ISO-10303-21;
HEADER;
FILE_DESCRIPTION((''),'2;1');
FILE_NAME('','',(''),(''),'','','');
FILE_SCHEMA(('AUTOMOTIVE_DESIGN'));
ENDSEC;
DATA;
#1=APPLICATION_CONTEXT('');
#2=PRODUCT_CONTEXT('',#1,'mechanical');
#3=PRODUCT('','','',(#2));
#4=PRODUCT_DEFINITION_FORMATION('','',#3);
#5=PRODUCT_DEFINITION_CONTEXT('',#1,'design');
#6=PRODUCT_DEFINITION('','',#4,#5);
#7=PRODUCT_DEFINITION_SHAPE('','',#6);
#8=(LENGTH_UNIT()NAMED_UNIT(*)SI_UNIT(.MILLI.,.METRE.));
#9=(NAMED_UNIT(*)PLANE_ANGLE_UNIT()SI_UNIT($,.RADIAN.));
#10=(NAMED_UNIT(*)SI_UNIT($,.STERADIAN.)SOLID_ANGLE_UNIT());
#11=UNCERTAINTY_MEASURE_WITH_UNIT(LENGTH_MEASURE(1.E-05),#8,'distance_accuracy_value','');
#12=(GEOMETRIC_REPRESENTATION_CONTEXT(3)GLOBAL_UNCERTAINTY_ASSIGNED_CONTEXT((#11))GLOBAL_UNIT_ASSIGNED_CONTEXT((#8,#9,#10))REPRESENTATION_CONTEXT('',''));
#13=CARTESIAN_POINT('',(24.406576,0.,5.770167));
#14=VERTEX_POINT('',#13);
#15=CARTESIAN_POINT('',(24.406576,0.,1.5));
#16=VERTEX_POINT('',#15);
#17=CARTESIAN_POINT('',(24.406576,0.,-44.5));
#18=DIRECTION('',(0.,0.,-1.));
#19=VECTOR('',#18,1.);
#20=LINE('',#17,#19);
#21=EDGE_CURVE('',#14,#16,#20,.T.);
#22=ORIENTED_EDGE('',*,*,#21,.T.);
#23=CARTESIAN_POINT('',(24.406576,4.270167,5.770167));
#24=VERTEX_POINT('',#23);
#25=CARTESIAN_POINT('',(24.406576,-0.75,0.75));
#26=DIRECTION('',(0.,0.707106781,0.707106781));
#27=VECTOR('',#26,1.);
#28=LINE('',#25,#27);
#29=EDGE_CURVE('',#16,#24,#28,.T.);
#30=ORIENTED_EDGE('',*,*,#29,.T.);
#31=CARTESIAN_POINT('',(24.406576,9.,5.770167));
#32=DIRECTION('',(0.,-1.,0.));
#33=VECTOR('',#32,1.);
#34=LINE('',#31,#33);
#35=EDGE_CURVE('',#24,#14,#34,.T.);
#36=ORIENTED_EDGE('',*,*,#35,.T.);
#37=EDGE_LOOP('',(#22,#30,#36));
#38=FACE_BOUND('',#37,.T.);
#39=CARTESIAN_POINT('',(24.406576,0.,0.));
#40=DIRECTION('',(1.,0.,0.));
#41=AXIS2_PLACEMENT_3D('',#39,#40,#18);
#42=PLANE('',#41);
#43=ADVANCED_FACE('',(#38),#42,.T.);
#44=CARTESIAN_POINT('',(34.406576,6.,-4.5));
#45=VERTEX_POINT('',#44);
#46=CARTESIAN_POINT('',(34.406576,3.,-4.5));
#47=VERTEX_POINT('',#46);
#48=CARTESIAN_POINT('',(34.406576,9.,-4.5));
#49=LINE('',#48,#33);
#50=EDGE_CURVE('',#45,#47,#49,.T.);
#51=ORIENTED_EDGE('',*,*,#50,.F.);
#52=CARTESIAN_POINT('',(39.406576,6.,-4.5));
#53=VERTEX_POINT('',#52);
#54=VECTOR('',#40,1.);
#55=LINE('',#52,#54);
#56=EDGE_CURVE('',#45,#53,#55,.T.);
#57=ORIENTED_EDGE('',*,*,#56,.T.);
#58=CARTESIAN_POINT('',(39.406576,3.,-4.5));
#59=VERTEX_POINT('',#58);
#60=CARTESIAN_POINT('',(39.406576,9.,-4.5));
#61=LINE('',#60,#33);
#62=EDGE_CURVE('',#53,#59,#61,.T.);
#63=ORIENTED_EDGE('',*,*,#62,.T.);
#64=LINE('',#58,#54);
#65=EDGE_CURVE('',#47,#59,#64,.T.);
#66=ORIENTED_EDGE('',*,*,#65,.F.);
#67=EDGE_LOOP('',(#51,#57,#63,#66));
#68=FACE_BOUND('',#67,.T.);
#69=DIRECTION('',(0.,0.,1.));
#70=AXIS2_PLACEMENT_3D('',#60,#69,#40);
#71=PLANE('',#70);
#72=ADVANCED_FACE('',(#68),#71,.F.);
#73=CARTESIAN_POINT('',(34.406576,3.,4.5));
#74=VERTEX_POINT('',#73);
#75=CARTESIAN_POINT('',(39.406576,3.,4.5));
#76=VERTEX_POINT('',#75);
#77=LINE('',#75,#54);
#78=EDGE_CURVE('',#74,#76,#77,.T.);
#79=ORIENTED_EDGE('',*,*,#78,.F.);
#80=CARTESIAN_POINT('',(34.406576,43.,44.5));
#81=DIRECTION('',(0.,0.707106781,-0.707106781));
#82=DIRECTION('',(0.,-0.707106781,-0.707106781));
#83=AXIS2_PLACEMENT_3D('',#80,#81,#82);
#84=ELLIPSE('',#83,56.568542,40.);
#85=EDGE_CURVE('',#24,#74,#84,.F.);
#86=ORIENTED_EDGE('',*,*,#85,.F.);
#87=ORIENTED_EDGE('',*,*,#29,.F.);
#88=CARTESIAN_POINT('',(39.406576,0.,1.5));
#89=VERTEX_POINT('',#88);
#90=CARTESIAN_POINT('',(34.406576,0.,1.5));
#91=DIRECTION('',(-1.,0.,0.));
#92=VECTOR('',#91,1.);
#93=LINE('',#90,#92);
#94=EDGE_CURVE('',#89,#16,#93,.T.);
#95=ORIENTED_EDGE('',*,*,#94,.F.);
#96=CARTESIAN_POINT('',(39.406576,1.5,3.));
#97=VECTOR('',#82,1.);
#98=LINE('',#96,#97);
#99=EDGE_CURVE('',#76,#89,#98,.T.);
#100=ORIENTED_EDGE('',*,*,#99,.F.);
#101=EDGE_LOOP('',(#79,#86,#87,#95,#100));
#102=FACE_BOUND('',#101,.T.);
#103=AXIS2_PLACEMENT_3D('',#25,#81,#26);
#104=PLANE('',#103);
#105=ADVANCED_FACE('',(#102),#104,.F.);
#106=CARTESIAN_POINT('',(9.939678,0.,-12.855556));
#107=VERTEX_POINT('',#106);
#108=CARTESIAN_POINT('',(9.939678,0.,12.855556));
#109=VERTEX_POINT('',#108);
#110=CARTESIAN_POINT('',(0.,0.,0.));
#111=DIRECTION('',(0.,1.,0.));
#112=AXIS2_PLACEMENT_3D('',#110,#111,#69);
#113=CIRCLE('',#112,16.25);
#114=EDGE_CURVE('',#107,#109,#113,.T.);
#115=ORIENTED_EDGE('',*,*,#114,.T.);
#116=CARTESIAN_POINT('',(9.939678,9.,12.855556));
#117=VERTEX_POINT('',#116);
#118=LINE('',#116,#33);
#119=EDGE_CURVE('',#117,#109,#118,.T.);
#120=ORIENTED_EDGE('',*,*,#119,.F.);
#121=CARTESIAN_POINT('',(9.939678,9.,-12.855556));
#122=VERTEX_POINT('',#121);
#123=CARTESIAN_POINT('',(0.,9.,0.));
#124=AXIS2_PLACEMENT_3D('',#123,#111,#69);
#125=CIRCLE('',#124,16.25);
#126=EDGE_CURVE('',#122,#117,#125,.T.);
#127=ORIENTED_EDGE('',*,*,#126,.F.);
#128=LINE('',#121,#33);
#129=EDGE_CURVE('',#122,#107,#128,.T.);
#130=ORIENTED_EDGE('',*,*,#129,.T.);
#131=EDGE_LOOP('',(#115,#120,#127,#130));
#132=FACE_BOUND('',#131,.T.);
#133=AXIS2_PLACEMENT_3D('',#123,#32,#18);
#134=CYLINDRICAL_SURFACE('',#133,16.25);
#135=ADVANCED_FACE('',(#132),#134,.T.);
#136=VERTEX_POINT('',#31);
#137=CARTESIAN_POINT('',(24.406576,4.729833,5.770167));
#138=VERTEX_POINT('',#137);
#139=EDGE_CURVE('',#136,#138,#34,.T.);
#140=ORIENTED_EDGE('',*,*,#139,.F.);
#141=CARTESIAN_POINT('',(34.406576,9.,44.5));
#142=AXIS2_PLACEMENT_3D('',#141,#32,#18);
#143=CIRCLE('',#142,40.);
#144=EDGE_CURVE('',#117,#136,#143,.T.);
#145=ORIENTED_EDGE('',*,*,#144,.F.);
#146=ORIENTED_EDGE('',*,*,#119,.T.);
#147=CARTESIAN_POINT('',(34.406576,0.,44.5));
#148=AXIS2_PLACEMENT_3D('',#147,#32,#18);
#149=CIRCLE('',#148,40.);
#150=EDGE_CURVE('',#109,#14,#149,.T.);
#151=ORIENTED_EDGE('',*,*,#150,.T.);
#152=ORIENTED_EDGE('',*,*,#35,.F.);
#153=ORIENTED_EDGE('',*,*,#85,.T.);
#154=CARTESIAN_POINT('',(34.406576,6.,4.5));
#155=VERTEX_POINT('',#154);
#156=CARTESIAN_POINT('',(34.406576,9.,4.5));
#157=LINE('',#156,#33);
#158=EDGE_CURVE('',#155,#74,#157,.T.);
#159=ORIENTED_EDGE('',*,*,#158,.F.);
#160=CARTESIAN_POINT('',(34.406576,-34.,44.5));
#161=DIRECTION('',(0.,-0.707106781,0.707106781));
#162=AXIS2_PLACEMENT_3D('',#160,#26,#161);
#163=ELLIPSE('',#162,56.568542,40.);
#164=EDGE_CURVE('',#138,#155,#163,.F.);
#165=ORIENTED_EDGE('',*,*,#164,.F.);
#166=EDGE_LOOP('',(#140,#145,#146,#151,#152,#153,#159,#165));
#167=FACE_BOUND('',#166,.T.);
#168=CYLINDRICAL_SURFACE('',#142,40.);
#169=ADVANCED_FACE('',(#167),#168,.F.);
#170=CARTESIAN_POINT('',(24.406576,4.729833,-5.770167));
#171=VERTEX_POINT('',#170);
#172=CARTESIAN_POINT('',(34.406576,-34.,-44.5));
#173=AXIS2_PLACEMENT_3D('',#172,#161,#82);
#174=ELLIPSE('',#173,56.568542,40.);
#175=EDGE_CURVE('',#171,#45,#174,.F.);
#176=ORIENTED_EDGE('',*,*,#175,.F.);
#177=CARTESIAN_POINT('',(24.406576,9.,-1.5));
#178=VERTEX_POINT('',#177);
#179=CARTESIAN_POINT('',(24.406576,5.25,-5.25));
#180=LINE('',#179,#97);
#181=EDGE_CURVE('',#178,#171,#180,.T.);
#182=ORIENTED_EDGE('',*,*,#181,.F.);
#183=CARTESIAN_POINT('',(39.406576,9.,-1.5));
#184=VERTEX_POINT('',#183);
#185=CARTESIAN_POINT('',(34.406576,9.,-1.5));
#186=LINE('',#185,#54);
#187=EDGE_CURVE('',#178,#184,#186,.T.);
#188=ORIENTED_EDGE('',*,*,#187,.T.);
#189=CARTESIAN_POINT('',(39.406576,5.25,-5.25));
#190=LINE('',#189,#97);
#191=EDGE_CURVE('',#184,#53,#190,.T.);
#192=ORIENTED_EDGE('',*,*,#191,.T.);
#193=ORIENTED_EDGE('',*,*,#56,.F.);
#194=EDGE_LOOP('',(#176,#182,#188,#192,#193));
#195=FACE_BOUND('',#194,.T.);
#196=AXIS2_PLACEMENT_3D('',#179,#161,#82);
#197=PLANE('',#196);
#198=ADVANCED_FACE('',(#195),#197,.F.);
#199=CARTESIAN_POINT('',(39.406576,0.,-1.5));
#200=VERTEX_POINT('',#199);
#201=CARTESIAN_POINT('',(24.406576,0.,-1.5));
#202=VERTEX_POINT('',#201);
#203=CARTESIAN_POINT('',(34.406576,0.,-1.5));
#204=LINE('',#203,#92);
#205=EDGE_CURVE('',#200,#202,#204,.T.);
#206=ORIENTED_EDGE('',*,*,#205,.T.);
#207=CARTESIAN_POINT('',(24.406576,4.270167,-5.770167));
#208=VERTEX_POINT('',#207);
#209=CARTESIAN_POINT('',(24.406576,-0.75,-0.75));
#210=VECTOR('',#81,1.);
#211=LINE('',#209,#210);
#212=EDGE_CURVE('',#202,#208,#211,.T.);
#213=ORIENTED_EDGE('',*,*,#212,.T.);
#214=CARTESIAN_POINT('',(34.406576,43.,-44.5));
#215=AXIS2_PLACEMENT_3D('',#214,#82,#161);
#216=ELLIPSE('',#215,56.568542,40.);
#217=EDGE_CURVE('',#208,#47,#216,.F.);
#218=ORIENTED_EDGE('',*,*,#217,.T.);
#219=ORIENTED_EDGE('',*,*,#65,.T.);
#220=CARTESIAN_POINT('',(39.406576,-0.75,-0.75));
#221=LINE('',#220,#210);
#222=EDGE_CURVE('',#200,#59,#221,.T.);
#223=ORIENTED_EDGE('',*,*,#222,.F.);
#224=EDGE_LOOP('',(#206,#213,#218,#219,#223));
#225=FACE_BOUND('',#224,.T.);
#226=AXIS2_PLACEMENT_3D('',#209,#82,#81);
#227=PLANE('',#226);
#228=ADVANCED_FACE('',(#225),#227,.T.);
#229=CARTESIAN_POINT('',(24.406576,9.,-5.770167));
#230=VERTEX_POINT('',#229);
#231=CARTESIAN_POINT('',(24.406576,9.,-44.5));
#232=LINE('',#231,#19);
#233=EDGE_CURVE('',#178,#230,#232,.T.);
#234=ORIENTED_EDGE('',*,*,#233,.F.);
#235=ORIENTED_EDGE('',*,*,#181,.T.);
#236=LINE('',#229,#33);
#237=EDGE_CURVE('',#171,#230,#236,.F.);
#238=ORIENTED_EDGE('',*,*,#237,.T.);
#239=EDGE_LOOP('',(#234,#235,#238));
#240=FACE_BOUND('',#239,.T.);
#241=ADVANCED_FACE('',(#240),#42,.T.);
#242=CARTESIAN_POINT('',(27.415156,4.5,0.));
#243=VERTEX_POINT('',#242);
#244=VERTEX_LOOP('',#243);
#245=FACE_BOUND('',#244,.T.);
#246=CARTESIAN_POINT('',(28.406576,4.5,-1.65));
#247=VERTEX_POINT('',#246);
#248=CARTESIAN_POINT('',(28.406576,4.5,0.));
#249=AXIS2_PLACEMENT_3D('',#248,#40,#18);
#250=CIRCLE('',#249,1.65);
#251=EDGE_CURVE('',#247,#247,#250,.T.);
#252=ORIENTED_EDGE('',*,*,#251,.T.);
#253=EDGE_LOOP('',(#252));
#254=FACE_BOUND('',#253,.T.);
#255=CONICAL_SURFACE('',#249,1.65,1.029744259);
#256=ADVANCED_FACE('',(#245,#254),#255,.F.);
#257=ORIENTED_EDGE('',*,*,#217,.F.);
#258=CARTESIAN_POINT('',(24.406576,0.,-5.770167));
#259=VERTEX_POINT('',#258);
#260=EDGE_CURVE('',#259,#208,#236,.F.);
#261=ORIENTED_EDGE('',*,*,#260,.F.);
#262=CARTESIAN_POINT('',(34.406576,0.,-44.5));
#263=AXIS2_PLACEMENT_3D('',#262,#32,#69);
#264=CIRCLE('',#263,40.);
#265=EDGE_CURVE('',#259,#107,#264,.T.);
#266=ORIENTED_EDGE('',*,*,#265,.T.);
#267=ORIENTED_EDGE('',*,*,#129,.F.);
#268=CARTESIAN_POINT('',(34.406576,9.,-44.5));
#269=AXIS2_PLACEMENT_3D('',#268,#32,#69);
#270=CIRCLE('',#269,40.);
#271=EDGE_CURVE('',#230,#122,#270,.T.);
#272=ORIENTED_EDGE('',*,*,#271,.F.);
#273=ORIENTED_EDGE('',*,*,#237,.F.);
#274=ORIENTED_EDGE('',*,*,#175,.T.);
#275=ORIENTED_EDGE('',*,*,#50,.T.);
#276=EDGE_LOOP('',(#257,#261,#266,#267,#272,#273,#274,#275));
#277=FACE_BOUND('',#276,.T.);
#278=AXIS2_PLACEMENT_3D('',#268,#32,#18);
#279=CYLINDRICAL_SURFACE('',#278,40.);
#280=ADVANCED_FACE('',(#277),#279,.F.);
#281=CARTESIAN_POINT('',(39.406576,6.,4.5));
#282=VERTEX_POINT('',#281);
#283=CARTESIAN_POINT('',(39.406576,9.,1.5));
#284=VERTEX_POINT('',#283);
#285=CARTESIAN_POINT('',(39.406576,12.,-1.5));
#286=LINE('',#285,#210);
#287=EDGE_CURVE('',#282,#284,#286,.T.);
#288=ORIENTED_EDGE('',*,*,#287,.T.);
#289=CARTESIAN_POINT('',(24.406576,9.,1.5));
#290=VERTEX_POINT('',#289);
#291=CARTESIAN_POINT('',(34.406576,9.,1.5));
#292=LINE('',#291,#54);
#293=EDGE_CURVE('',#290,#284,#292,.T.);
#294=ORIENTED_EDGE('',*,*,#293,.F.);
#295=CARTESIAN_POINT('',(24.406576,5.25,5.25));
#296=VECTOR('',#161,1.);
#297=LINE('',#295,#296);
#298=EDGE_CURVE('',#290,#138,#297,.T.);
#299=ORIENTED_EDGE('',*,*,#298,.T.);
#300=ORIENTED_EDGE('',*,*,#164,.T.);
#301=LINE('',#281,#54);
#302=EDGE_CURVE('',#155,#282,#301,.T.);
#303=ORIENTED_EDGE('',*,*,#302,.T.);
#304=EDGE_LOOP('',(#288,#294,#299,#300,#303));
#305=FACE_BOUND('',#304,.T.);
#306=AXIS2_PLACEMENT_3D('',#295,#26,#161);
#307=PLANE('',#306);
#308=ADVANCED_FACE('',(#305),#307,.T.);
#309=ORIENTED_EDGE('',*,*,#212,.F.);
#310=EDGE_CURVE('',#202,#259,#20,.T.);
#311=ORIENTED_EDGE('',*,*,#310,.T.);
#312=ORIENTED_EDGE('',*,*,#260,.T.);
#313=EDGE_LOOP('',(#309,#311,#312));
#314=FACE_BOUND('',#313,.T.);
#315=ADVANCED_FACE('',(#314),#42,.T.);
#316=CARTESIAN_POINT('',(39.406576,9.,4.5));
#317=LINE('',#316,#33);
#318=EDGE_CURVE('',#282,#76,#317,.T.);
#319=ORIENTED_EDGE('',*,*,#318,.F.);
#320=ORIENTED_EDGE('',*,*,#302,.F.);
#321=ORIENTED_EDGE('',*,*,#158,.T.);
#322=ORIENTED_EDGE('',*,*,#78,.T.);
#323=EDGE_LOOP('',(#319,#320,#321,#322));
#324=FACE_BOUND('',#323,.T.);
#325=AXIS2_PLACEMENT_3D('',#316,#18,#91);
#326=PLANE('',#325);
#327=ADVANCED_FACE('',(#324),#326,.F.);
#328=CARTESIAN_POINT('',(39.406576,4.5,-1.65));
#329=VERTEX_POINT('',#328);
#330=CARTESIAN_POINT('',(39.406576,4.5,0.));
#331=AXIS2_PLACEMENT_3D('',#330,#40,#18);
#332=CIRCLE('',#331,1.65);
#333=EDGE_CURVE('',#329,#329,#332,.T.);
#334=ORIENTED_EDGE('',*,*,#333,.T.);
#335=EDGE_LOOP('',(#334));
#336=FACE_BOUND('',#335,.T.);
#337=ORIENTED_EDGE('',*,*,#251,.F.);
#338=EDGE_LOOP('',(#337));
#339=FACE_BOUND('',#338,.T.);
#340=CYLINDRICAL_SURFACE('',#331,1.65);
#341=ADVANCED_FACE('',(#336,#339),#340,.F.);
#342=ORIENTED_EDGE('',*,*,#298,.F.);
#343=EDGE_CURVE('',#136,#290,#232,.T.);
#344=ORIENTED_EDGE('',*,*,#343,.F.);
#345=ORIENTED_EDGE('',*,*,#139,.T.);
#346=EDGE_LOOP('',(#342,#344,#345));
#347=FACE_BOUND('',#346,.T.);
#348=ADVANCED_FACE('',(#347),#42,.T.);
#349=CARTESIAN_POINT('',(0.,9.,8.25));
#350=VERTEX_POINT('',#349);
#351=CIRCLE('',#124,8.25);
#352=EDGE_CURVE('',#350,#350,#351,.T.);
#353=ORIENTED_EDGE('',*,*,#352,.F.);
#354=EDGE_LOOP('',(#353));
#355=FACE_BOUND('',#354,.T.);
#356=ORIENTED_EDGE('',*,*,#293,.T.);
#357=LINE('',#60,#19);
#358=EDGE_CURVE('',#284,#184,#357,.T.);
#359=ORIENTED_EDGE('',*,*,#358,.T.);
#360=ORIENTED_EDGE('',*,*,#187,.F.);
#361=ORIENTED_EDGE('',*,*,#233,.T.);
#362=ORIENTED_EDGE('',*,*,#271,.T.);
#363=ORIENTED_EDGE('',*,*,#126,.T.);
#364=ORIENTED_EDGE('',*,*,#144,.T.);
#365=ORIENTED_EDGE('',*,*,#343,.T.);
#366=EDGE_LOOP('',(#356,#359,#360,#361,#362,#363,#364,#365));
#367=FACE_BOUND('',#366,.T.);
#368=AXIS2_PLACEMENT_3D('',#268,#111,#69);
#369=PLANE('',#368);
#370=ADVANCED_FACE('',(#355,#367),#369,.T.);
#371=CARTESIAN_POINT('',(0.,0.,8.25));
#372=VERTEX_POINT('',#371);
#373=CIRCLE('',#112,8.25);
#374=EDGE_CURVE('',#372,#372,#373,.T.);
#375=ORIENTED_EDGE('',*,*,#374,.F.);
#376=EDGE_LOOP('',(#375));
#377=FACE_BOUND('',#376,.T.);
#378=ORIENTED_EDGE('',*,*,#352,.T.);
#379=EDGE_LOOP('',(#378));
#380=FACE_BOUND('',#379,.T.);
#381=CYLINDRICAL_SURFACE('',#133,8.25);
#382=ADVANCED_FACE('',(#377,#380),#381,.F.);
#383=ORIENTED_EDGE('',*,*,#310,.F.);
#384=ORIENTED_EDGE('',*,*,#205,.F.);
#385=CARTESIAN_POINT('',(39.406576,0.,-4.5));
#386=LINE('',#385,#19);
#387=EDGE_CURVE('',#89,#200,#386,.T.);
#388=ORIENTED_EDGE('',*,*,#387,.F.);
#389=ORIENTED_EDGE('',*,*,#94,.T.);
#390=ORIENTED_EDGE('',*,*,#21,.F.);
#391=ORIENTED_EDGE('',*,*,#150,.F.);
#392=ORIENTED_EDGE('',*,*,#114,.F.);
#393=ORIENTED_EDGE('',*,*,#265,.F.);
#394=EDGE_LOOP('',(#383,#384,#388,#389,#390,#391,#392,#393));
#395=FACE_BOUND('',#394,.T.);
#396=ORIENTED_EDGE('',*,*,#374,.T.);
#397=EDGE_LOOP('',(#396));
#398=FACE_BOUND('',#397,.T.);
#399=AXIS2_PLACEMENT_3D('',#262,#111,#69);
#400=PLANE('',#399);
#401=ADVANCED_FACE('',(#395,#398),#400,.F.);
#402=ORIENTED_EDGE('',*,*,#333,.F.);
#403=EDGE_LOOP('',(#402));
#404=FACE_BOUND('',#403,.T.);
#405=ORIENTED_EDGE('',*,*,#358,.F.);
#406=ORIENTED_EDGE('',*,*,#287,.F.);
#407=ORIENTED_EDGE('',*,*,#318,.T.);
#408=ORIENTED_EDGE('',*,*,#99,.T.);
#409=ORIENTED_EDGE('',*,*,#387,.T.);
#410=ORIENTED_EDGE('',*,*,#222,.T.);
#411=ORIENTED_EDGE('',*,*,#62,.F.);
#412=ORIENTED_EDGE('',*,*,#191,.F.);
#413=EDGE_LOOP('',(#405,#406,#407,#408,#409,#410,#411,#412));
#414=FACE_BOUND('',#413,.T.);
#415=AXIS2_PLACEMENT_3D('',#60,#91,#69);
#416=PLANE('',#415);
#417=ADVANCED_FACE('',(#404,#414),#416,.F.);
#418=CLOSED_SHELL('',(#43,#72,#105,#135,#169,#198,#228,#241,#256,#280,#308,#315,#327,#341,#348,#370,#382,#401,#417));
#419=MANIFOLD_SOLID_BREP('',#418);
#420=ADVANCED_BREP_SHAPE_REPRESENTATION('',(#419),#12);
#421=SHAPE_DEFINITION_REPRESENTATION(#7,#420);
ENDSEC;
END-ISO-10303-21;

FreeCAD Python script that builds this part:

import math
import FreeCAD as App
import Part
import Sketcher

doc = App.newDocument("Part")
body = doc.addObject("PartDesign::Body", "Body")

# Sketch on XZ plane
sketch1 = doc.addObject("Sketcher::SketchObject", "Sketch")
body.addObject(sketch1)
sketch1.AttachmentSupport = (doc.XZ_Plane, [""])
sketch1.MapMode = "FlatFace"
sketch1.addGeometry(Part.LineSegment(App.Vector(39, 4, 0), App.Vector(39, -4, 0)), False)
sketch1.addGeometry(Part.LineSegment(App.Vector(39, -4, 0), App.Vector(34, -4, 0)), False)
sketch1.addGeometry(Part.ArcOfCircle(Part.Circle(App.Vector(34, -45, 0), App.Vector(0, 0, 1), 40), math.radians(90), math.radians(128)), False)
sketch1.addGeometry(Part.ArcOfCircle(Part.Circle(App.Vector(0, 0, 0), App.Vector(0, 0, 1), 16), math.radians(52), math.radians(308)), False)
sketch1.addGeometry(Part.ArcOfCircle(Part.Circle(App.Vector(34, 45, 0), App.Vector(0, 0, 1), 40), math.radians(-128), math.radians(-90)), False)
sketch1.addGeometry(Part.LineSegment(App.Vector(34, 4, 0), App.Vector(39, 4, 0)), False)
sketch1.addGeometry(Part.Circle(App.Vector(0, 0, 0), App.Vector(0, 0, 1), 8), False)
sketch1.addConstraint(Sketcher.Constraint("Coincident", 0, 2, 1, 1))
sketch1.addConstraint(Sketcher.Constraint("Tangent", 1, 2, 2, 1))
sketch1.addConstraint(Sketcher.Constraint("Tangent", 2, 2, 3, 2))
sketch1.addConstraint(Sketcher.Constraint("Tangent", 3, 1, 4, 1))
sketch1.addConstraint(Sketcher.Constraint("Tangent", 4, 2, 5, 1))
sketch1.addConstraint(Sketcher.Constraint("Coincident", 5, 2, 0, 1))
sketch1.addConstraint(Sketcher.Constraint("Vertical", 0))
sketch1.addConstraint(Sketcher.Constraint("Horizontal", 1))
sketch1.addConstraint(Sketcher.Constraint("Horizontal", 5))
sketch1.addConstraint(Sketcher.Constraint("Coincident", 3, 3, -1, 1))
sketch1.addConstraint(Sketcher.Constraint("Coincident", 6, 3, -1, 1))
sketch1.addConstraint(Sketcher.Constraint("Equal", 2, 4))
sketch1.addConstraint(Sketcher.Constraint("Vertical", 2, 3, 4, 3))
sketch1.addConstraint(Sketcher.Constraint("Radius", 2, 40.0))
sketch1.addConstraint(Sketcher.Constraint("Diameter", 6, 16.5))
sketch1.addConstraint(Sketcher.Constraint("DistanceX", 1, 2, 1, 1, 5.0))
sketch1.addConstraint(Sketcher.Constraint("DistanceY", 0, 2, 0, 1, 9.0))
sketch1.addConstraint(Sketcher.Constraint("Radius", 3, 16.25))
pad1 = doc.addObject("PartDesign::Pad", "Pad")
body.addObject(pad1)
pad1.Profile = sketch1
pad1.Length = 9
pad1.Reversed = True

# Sketch on YZ plane
sketch2 = doc.addObject("Sketcher::SketchObject", "Sketch001")
body.addObject(sketch2)
sketch2.AttachmentSupport = (doc.YZ_Plane, [""])
sketch2.MapMode = "FlatFace"
sketch2.AttachmentOffset = App.Placement(App.Vector(0, 0, 39.406576), App.Rotation())
sketch2.addGeometry(Part.Circle(App.Vector(4.5, 0, 0), App.Vector(0, 0, 1), 1.6), False)
sketch2.addConstraint(Sketcher.Constraint("PointOnObject", 0, 3, -1))
sketch2.addConstraint(Sketcher.Constraint("Diameter", 0, 3.3))
sketch2.addConstraint(Sketcher.Constraint("DistanceX", -1, 1, 0, 3, 4.5))
doc.recompute()
hole = doc.addObject("PartDesign::Hole", "Hole")
body.addObject(hole)
hole.Profile = sketch2
hole.ThreadType = "None"
hole.Diameter = 3.3
hole.DepthType = "Dimension"
hole.Depth = 11
hole.DrillPoint = "Angled"
hole.DrillPointAngle = 118

# Sketch on YZ plane
sketch3 = doc.addObject("Sketcher::SketchObject", "Sketch002")
body.addObject(sketch3)
sketch3.AttachmentSupport = (doc.YZ_Plane, [""])
sketch3.MapMode = "FlatFace"
sketch3.AttachmentOffset = App.Placement(App.Vector(0, 0, 39.406576), App.Rotation())
sketch3.addGeometry(Part.LineSegment(App.Vector(10, 0, 0), App.Vector(10, 6, 0)), False)
sketch3.addGeometry(Part.LineSegment(App.Vector(10, 6, 0), App.Vector(4, 6, 0)), False)
sketch3.addGeometry(Part.LineSegment(App.Vector(4, 6, 0), App.Vector(10, 0, 0)), False)
sketch3.addGeometry(Part.LineSegment(App.Vector(10, -6, 0), App.Vector(10, 0, 0)), False)
sketch3.addGeometry(Part.LineSegment(App.Vector(10, 0, 0), App.Vector(4, -6, 0)), False)
sketch3.addGeometry(Part.LineSegment(App.Vector(4, -6, 0), App.Vector(10, -6, 0)), False)
sketch3.addGeometry(Part.LineSegment(App.Vector(-2, 0, 0), App.Vector(-2, -6, 0)), False)
sketch3.addGeometry(Part.LineSegment(App.Vector(-2, -6, 0), App.Vector(4, -6, 0)), False)
sketch3.addGeometry(Part.LineSegment(App.Vector(4, -6, 0), App.Vector(-2, 0, 0)), False)
sketch3.addGeometry(Part.LineSegment(App.Vector(4, 6, 0), App.Vector(-2, 6, 0)), False)
sketch3.addGeometry(Part.LineSegment(App.Vector(-2, 6, 0), App.Vector(-2, 0, 0)), False)
sketch3.addGeometry(Part.LineSegment(App.Vector(-2, 0, 0), App.Vector(4, 6, 0)), False)
sketch3.addConstraint(Sketcher.Constraint("Coincident", 0, 2, 1, 1))
sketch3.addConstraint(Sketcher.Constraint("Coincident", 1, 2, 2, 1))
sketch3.addConstraint(Sketcher.Constraint("Coincident", 2, 2, 0, 1))
sketch3.addConstraint(Sketcher.Constraint("Coincident", 3, 2, 4, 1))
sketch3.addConstraint(Sketcher.Constraint("Coincident", 4, 2, 5, 1))
sketch3.addConstraint(Sketcher.Constraint("Coincident", 5, 2, 3, 1))
sketch3.addConstraint(Sketcher.Constraint("Coincident", 6, 2, 7, 1))
sketch3.addConstraint(Sketcher.Constraint("Coincident", 7, 2, 8, 1))
sketch3.addConstraint(Sketcher.Constraint("Coincident", 8, 2, 6, 1))
sketch3.addConstraint(Sketcher.Constraint("Coincident", 9, 2, 10, 1))
sketch3.addConstraint(Sketcher.Constraint("Coincident", 10, 2, 11, 1))
sketch3.addConstraint(Sketcher.Constraint("Coincident", 11, 2, 9, 1))
sketch3.addConstraint(Sketcher.Constraint("Vertical", 0))
sketch3.addConstraint(Sketcher.Constraint("Horizontal", 1))
sketch3.addConstraint(Sketcher.Constraint("Vertical", 3))
sketch3.addConstraint(Sketcher.Constraint("Horizontal", 5))
sketch3.addConstraint(Sketcher.Constraint("Vertical", 6))
sketch3.addConstraint(Sketcher.Constraint("Horizontal", 7))
sketch3.addConstraint(Sketcher.Constraint("Horizontal", 9))
sketch3.addConstraint(Sketcher.Constraint("Vertical", 10))
sketch3.addConstraint(Sketcher.Constraint("Coincident", 3, 2, 2, 2))
sketch3.addConstraint(Sketcher.Constraint("Coincident", 7, 2, 4, 2))
sketch3.addConstraint(Sketcher.Constraint("Coincident", 10, 2, 8, 2))
sketch3.addConstraint(Sketcher.Constraint("Coincident", 11, 2, 1, 2))
sketch3.addConstraint(Sketcher.Constraint("Symmetric", 1, 2, 4, 2, -1))
sketch3.addConstraint(Sketcher.Constraint("PointOnObject", 2, 2, -1))
sketch3.addConstraint(Sketcher.Constraint("PointOnObject", 8, 2, -1))
sketch3.addConstraint(Sketcher.Constraint("Perpendicular", 2, 4))
sketch3.addConstraint(Sketcher.Constraint("Perpendicular", 4, 8))
sketch3.addConstraint(Sketcher.Constraint("DistanceX", 1, 2, 1, 1, 6.0))
sketch3.addConstraint(Sketcher.Constraint("DistanceX", -1, 1, 0, 2, 10.5))
pocket1 = doc.addObject("PartDesign::Pocket", "Pocket")
body.addObject(pocket1)
pocket1.Profile = sketch3
pocket1.Length = 15

doc.recompute()
